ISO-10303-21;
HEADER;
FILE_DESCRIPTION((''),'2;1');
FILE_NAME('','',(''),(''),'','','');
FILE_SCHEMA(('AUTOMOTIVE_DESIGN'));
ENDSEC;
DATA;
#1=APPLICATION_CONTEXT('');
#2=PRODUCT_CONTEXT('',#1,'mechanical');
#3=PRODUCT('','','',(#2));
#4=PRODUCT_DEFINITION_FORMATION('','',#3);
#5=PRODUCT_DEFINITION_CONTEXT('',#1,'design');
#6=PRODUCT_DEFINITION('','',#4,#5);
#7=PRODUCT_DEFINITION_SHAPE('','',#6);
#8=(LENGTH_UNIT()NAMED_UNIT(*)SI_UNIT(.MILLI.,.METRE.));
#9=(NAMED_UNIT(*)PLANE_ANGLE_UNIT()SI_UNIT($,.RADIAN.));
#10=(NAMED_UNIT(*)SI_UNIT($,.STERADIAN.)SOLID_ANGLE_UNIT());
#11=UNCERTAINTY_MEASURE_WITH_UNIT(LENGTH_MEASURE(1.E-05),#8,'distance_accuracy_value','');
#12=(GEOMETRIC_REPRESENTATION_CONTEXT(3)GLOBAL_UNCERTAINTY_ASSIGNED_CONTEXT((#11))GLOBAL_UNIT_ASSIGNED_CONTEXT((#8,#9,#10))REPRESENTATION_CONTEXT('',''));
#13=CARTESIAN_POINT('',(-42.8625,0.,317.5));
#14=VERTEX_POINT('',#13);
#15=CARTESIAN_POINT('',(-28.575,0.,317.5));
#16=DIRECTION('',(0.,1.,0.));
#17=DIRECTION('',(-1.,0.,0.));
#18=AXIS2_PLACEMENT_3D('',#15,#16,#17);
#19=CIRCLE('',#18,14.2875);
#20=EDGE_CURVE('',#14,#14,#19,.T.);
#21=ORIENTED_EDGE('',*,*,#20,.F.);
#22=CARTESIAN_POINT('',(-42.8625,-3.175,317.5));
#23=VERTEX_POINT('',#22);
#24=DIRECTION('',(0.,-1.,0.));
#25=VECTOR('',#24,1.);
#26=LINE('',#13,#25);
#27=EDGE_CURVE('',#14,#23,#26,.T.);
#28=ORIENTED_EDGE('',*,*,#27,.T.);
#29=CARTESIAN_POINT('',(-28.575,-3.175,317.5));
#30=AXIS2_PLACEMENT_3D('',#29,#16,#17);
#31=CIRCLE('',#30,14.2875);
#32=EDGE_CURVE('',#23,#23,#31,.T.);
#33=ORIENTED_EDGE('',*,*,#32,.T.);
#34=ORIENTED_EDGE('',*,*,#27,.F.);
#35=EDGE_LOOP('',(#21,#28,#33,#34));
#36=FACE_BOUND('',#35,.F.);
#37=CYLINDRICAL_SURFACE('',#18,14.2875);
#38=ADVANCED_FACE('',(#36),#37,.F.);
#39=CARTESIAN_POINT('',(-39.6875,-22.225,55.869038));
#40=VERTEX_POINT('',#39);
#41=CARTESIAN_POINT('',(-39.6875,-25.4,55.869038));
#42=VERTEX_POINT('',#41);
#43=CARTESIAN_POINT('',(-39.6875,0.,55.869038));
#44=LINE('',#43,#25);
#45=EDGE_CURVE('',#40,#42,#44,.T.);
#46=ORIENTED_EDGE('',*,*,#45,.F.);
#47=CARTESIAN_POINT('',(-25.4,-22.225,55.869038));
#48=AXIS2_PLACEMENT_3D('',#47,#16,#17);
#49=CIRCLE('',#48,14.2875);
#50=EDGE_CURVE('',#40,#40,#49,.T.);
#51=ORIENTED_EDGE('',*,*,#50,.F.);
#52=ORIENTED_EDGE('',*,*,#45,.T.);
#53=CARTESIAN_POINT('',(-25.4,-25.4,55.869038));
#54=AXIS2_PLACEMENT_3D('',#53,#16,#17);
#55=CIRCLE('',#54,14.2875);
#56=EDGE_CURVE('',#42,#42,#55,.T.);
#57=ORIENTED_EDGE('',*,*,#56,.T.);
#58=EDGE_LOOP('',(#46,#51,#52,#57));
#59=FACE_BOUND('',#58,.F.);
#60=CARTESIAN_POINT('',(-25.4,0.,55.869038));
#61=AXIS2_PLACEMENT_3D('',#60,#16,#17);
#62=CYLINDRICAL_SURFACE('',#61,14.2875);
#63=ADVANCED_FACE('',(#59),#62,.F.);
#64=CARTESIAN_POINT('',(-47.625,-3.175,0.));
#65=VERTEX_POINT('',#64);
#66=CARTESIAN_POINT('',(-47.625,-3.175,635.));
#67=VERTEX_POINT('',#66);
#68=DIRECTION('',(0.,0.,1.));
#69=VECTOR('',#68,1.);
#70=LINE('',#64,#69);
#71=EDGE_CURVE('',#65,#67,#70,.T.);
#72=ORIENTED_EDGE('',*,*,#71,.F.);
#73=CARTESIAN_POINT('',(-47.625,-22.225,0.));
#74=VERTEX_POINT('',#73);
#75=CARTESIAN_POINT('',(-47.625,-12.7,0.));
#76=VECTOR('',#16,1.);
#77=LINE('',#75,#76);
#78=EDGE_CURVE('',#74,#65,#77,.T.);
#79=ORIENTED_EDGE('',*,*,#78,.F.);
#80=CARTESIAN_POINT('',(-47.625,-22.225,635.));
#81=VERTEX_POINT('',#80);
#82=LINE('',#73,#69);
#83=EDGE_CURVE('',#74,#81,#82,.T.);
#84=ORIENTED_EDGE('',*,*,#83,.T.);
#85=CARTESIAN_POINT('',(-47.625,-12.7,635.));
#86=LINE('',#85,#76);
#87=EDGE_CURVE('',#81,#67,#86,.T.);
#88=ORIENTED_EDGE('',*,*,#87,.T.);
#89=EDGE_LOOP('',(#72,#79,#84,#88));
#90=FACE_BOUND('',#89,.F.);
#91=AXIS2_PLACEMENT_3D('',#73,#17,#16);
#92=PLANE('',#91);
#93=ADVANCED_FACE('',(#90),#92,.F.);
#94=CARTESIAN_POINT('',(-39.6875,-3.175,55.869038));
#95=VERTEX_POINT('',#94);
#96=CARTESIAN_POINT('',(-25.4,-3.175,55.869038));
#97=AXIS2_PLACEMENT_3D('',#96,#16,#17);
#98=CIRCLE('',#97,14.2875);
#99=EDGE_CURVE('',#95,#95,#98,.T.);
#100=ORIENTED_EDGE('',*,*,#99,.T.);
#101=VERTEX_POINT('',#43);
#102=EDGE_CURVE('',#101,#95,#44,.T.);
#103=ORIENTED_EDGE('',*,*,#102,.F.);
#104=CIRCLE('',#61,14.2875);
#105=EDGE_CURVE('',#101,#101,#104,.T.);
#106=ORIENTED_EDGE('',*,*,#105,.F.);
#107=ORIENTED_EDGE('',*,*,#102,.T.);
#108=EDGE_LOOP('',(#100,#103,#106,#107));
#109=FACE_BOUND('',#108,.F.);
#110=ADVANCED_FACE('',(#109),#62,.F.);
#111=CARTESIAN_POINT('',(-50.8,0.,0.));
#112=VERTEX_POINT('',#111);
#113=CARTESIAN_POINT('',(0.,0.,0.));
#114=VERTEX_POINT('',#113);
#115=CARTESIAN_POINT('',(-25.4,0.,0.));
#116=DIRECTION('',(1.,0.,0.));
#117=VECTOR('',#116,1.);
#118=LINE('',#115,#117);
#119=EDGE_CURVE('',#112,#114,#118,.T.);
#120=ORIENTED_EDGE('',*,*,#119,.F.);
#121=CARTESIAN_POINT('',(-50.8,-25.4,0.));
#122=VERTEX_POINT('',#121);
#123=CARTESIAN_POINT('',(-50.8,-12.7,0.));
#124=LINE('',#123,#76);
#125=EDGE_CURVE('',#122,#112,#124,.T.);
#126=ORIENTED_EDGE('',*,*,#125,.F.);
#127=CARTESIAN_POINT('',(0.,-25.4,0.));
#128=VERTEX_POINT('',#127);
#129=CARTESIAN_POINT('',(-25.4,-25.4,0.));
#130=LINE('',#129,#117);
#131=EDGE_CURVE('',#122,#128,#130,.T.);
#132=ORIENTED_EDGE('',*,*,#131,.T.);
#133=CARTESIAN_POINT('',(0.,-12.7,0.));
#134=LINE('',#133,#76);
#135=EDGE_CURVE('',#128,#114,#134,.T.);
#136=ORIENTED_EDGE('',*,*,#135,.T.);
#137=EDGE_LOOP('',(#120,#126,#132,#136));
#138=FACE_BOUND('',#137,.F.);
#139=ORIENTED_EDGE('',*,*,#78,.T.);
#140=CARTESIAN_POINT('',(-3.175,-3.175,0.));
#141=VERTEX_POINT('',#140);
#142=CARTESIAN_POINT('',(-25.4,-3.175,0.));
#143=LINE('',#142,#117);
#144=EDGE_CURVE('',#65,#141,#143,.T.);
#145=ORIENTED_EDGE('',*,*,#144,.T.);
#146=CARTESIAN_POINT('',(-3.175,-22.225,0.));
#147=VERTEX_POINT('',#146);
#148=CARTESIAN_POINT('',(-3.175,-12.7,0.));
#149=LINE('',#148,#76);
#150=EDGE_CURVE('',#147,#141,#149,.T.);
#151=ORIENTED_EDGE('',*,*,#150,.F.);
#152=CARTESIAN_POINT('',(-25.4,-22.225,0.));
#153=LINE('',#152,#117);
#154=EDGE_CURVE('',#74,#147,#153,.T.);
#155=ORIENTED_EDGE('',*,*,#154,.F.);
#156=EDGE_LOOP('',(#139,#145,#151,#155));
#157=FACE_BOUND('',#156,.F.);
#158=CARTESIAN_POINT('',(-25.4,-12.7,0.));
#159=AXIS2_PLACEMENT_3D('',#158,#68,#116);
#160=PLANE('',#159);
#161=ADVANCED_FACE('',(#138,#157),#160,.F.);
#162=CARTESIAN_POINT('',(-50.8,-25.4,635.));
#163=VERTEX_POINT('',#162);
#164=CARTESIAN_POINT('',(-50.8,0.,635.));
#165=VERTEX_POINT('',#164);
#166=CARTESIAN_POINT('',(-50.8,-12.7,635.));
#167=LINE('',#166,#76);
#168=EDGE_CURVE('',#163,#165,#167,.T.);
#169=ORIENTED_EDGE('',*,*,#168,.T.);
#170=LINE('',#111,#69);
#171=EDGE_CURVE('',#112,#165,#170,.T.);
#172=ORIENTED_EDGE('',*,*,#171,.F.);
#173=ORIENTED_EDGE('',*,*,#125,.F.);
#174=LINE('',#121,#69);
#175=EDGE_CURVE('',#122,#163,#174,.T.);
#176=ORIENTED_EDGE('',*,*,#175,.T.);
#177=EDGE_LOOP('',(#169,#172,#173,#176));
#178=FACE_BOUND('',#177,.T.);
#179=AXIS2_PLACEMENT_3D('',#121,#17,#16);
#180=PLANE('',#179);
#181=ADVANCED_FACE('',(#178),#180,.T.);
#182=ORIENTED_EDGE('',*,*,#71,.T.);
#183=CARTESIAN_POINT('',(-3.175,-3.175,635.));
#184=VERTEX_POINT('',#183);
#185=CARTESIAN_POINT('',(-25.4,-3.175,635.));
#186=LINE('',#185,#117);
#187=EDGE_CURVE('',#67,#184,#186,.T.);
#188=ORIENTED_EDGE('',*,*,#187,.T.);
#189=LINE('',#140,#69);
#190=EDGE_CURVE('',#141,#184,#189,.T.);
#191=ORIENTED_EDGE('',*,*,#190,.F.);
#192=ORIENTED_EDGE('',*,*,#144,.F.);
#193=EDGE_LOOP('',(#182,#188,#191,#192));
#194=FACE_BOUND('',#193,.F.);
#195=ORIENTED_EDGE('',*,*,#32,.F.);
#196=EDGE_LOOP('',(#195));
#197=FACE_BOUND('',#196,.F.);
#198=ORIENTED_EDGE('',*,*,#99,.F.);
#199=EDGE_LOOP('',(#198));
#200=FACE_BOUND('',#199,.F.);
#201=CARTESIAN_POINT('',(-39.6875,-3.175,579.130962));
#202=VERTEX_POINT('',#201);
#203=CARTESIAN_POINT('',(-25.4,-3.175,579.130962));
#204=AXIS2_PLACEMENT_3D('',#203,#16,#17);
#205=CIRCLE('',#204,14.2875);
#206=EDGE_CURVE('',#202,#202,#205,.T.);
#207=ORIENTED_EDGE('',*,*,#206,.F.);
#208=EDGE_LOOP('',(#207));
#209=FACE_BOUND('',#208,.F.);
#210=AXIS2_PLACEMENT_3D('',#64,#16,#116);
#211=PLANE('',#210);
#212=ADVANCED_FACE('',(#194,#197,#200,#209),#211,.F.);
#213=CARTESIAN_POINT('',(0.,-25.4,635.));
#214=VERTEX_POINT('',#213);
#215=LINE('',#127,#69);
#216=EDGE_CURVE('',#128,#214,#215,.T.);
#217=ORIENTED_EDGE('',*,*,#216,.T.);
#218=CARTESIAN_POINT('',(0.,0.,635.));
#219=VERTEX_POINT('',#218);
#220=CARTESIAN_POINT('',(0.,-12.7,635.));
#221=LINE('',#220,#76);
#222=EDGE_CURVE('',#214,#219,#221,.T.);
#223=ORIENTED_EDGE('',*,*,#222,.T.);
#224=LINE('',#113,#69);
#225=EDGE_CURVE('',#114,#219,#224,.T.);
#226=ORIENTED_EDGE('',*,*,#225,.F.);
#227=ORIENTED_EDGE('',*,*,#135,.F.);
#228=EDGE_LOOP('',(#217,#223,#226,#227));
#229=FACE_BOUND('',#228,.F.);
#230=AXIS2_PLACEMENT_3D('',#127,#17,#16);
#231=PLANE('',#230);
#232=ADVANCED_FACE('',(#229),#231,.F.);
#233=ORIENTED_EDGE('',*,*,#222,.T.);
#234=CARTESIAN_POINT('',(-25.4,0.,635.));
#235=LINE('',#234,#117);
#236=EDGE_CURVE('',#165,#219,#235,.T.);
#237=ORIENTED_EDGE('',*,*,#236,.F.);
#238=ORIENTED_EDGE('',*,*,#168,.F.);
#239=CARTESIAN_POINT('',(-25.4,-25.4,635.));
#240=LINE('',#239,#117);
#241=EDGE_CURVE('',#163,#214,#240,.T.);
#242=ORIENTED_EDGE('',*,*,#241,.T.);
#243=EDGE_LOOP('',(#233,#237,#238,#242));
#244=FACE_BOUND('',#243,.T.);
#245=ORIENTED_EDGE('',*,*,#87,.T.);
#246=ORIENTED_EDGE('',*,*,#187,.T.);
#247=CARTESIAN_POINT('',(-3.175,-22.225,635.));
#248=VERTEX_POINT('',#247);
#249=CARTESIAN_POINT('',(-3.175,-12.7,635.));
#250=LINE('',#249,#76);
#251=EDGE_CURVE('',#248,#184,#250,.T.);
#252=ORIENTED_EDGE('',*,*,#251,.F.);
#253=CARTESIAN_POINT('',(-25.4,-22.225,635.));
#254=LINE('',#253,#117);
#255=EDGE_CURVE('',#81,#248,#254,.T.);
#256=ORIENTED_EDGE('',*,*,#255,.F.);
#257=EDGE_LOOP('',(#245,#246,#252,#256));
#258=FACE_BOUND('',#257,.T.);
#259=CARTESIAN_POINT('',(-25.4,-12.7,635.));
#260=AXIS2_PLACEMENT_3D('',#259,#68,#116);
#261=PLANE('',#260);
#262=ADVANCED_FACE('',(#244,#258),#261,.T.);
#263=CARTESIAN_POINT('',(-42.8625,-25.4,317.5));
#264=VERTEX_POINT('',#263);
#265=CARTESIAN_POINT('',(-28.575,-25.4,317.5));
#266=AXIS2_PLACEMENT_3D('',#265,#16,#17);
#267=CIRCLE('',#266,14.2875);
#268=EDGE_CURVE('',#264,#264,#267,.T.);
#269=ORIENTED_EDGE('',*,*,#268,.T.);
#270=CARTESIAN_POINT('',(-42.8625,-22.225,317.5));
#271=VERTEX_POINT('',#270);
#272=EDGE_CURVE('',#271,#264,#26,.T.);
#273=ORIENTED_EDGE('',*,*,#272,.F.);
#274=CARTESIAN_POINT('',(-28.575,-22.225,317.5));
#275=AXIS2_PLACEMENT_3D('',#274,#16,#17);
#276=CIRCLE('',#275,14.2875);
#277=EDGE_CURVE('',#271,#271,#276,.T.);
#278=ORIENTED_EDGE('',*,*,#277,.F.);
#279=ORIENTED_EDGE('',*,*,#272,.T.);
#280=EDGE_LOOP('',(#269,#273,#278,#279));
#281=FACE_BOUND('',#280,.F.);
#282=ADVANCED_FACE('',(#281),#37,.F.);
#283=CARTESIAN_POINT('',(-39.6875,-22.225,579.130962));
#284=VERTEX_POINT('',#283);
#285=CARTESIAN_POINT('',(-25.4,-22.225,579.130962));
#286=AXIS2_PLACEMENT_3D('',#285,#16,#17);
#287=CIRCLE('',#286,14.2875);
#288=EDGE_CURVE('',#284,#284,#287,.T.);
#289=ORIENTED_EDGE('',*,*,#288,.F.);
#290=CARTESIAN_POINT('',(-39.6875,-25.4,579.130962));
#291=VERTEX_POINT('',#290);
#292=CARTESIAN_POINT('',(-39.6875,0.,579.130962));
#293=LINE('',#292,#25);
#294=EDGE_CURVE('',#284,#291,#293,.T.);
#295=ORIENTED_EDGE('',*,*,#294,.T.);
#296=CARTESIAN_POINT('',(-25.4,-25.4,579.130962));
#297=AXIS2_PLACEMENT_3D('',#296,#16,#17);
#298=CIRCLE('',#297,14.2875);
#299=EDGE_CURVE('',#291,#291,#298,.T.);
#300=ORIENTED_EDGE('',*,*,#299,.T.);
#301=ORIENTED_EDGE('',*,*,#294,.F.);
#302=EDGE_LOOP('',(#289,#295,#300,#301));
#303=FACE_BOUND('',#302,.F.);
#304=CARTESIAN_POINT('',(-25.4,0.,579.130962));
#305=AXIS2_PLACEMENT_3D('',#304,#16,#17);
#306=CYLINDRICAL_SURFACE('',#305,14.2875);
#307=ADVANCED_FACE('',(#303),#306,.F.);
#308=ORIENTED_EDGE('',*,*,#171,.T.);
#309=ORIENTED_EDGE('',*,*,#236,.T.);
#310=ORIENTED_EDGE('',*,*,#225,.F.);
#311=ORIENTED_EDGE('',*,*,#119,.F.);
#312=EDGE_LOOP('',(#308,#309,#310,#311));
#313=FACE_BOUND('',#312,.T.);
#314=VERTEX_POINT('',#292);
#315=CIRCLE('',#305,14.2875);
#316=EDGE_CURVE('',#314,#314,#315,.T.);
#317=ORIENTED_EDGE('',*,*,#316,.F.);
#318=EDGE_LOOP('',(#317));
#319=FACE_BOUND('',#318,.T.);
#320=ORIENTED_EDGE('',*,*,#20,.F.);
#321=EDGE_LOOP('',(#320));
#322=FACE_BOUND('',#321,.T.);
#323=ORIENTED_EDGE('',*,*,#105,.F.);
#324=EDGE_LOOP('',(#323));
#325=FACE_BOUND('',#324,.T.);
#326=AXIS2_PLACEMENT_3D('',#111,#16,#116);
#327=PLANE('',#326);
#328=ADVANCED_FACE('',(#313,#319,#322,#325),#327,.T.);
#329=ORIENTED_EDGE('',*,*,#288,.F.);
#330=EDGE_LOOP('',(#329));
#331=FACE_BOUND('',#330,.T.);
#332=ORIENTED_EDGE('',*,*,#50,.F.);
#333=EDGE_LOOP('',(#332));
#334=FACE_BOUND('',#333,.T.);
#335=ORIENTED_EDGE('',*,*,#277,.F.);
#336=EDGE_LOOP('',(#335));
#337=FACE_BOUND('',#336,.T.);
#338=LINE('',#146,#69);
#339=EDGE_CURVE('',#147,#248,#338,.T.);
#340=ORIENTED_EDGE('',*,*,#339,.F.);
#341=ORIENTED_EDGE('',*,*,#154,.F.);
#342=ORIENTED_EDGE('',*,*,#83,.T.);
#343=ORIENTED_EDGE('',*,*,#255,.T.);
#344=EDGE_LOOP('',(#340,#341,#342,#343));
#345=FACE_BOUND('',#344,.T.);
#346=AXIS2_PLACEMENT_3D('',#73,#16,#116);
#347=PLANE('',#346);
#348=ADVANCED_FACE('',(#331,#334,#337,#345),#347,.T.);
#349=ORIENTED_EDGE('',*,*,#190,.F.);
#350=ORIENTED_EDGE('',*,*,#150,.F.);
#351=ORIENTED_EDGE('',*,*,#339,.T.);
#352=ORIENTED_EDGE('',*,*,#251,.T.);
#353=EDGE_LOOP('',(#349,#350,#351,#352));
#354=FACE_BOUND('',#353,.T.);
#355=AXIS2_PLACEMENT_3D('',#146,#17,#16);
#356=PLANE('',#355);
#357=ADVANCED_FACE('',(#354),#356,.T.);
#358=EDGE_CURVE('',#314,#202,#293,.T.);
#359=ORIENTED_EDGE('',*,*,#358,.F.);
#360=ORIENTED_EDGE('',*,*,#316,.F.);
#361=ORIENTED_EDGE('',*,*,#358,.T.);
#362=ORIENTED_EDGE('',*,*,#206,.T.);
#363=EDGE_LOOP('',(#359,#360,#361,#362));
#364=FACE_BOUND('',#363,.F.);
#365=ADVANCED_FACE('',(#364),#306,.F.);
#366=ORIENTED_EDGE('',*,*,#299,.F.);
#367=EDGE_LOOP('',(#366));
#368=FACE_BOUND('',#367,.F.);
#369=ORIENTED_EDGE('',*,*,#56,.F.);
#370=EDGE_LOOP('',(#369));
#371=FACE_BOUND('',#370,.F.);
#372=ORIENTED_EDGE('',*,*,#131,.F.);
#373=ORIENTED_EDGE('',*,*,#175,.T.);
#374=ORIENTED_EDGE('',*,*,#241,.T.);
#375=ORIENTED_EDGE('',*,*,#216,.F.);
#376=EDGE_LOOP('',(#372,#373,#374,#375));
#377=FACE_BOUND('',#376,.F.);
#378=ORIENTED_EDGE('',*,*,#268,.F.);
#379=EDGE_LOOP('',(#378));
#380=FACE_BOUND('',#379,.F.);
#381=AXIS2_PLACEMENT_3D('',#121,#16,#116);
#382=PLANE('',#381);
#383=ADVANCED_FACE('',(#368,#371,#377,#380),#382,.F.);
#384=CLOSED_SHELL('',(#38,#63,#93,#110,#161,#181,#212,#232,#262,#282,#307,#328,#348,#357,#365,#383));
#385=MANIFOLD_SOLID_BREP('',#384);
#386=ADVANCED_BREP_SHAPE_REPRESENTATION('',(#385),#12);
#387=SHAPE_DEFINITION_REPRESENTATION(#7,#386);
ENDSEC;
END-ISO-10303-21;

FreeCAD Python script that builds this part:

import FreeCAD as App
import Part
import Sketcher
from FreeCAD import Vector
Q = App.Units.Quantity


def add_polygon(sketch, points):
    """Adds a closed chain of lines whose ends are joined by coincident constraints."""
    first, n = sketch.GeometryCount, len(points)
    for a, b in zip(points, points[1:] + points[:1]):
        sketch.addGeometry(Part.LineSegment(App.Vector(*a, 0), App.Vector(*b, 0)), False)
    for i in range(n):
        sketch.addConstraint(Sketcher.Constraint("Coincident", first + i, 2, first + (i + 1) % n, 1))

doc = App.newDocument("Part")
params = doc.addObject("Spreadsheet::Sheet", "Params")
for row, (alias, value) in enumerate([
    ("sketch1_width", "2 in"),
    ("sketch1_height", "1 in"),
    ("sketch1_width2", "1.75 in"),
    ("sketch1_height2", "0.75 in"),
    ("pad1_length", "25 in"),
    ("sketch2_diameter", "1.125 in"),
], start=1):
    params.set(f"A{row}", alias)
    params.set(f"B{row}", "=" + value)
    params.setAlias(f"B{row}", alias)

body = doc.addObject("PartDesign::Body", "Body")

# Sketch on XY plane
sketch1 = doc.addObject("Sketcher::SketchObject", "Sketch")
body.addObject(sketch1)
sketch1.AttachmentSupport = (doc.XY_Plane, [""])
sketch1.MapMode = "FlatFace"
add_polygon(sketch1, [(-51, 0), (-51, -25), (0, -25), (0, 0)])  # lines 0-3
add_polygon(sketch1, [(-3, -22), (-48, -22), (-48, -3), (-3, -3)])  # lines 4-7
sketch1.addConstraint([
    Sketcher.Constraint("Vertical", 0),
    Sketcher.Constraint("Horizontal", 1),
    Sketcher.Constraint("Vertical", 2),
    Sketcher.Constraint("Horizontal", 3),
    Sketcher.Constraint("Horizontal", 4),
    Sketcher.Constraint("Vertical", 5),
    Sketcher.Constraint("Horizontal", 6),
    Sketcher.Constraint("Vertical", 7),
    Sketcher.Constraint("Coincident", 2, 2, -1, 1),
    Sketcher.Constraint("DistanceX", 1, 1, 1, 2, Q("2 in")),
    Sketcher.Constraint("DistanceY", 0, 2, 0, 1, Q("1 in")),
    Sketcher.Constraint("DistanceX", 4, 2, 4, 1, Q("1.75 in")),
    Sketcher.Constraint("DistanceY", 5, 1, 5, 2, Q("0.75 in")),
    Sketcher.Constraint("DistanceX", 4, 2, -1, 1, Q("1.875 in")),
    Sketcher.Constraint("DistanceY", 4, 2, -1, 1, Q("0.875 in")),
])
sketch1.setExpression("Constraints[17]", "Params.sketch1_width")
sketch1.setExpression("Constraints[18]", "Params.sketch1_height")
sketch1.setExpression("Constraints[19]", "Params.sketch1_width2")
sketch1.setExpression("Constraints[20]", "Params.sketch1_height2")
pad1 = doc.addObject("PartDesign::Pad", "Pad")
body.addObject(pad1)
pad1.Profile = sketch1
pad1.setExpression("Length", "Params.pad1_length")

# Sketch on XZ plane
sketch2 = doc.addObject("Sketcher::SketchObject", "Sketch001")
body.addObject(sketch2)
sketch2.AttachmentSupport = (doc.XZ_Plane, [""])
sketch2.MapMode = "FlatFace"
sketch2.addGeometry([
    Part.Circle(Vector(-25, 56, 0), Vector(0, 0, 1), 14),
    Part.Circle(Vector(-25, 579, 0), Vector(0, 0, 1), 14),
    Part.Circle(Vector(-29, 318, 0), Vector(0, 0, 1), 14),
], False)
sketch2.addConstraint([
    Sketcher.Constraint("Equal", 0, 1),
    Sketcher.Constraint("Equal", 1, 2),
    Sketcher.Constraint("Vertical", 0, 3, 1, 3),
    Sketcher.Constraint("Diameter", 0, Q("1.125 in")),
    Sketcher.Constraint("DistanceX", 0, 3, -1, 1, Q("1 in")),
    Sketcher.Constraint("DistanceY", -1, 1, 2, 3, Q("12.5 in")),
    Sketcher.Constraint("DistanceX", 2, 3, -1, 1, Q("1.125 in")),
    Sketcher.Constraint("DistanceY", -1, 1, 0, 3, 55.869038),
    Sketcher.Constraint("DistanceY", -1, 1, 1, 3, 579.130962),
])
sketch2.setExpression("Constraints[3]", "Params.sketch2_diameter")
pocket1 = doc.addObject("PartDesign::Pocket", "Pocket")
body.addObject(pocket1)
pocket1.Profile = sketch2
pocket1.Type = "ThroughAll"
pocket1.Reversed = True

doc.recompute()
